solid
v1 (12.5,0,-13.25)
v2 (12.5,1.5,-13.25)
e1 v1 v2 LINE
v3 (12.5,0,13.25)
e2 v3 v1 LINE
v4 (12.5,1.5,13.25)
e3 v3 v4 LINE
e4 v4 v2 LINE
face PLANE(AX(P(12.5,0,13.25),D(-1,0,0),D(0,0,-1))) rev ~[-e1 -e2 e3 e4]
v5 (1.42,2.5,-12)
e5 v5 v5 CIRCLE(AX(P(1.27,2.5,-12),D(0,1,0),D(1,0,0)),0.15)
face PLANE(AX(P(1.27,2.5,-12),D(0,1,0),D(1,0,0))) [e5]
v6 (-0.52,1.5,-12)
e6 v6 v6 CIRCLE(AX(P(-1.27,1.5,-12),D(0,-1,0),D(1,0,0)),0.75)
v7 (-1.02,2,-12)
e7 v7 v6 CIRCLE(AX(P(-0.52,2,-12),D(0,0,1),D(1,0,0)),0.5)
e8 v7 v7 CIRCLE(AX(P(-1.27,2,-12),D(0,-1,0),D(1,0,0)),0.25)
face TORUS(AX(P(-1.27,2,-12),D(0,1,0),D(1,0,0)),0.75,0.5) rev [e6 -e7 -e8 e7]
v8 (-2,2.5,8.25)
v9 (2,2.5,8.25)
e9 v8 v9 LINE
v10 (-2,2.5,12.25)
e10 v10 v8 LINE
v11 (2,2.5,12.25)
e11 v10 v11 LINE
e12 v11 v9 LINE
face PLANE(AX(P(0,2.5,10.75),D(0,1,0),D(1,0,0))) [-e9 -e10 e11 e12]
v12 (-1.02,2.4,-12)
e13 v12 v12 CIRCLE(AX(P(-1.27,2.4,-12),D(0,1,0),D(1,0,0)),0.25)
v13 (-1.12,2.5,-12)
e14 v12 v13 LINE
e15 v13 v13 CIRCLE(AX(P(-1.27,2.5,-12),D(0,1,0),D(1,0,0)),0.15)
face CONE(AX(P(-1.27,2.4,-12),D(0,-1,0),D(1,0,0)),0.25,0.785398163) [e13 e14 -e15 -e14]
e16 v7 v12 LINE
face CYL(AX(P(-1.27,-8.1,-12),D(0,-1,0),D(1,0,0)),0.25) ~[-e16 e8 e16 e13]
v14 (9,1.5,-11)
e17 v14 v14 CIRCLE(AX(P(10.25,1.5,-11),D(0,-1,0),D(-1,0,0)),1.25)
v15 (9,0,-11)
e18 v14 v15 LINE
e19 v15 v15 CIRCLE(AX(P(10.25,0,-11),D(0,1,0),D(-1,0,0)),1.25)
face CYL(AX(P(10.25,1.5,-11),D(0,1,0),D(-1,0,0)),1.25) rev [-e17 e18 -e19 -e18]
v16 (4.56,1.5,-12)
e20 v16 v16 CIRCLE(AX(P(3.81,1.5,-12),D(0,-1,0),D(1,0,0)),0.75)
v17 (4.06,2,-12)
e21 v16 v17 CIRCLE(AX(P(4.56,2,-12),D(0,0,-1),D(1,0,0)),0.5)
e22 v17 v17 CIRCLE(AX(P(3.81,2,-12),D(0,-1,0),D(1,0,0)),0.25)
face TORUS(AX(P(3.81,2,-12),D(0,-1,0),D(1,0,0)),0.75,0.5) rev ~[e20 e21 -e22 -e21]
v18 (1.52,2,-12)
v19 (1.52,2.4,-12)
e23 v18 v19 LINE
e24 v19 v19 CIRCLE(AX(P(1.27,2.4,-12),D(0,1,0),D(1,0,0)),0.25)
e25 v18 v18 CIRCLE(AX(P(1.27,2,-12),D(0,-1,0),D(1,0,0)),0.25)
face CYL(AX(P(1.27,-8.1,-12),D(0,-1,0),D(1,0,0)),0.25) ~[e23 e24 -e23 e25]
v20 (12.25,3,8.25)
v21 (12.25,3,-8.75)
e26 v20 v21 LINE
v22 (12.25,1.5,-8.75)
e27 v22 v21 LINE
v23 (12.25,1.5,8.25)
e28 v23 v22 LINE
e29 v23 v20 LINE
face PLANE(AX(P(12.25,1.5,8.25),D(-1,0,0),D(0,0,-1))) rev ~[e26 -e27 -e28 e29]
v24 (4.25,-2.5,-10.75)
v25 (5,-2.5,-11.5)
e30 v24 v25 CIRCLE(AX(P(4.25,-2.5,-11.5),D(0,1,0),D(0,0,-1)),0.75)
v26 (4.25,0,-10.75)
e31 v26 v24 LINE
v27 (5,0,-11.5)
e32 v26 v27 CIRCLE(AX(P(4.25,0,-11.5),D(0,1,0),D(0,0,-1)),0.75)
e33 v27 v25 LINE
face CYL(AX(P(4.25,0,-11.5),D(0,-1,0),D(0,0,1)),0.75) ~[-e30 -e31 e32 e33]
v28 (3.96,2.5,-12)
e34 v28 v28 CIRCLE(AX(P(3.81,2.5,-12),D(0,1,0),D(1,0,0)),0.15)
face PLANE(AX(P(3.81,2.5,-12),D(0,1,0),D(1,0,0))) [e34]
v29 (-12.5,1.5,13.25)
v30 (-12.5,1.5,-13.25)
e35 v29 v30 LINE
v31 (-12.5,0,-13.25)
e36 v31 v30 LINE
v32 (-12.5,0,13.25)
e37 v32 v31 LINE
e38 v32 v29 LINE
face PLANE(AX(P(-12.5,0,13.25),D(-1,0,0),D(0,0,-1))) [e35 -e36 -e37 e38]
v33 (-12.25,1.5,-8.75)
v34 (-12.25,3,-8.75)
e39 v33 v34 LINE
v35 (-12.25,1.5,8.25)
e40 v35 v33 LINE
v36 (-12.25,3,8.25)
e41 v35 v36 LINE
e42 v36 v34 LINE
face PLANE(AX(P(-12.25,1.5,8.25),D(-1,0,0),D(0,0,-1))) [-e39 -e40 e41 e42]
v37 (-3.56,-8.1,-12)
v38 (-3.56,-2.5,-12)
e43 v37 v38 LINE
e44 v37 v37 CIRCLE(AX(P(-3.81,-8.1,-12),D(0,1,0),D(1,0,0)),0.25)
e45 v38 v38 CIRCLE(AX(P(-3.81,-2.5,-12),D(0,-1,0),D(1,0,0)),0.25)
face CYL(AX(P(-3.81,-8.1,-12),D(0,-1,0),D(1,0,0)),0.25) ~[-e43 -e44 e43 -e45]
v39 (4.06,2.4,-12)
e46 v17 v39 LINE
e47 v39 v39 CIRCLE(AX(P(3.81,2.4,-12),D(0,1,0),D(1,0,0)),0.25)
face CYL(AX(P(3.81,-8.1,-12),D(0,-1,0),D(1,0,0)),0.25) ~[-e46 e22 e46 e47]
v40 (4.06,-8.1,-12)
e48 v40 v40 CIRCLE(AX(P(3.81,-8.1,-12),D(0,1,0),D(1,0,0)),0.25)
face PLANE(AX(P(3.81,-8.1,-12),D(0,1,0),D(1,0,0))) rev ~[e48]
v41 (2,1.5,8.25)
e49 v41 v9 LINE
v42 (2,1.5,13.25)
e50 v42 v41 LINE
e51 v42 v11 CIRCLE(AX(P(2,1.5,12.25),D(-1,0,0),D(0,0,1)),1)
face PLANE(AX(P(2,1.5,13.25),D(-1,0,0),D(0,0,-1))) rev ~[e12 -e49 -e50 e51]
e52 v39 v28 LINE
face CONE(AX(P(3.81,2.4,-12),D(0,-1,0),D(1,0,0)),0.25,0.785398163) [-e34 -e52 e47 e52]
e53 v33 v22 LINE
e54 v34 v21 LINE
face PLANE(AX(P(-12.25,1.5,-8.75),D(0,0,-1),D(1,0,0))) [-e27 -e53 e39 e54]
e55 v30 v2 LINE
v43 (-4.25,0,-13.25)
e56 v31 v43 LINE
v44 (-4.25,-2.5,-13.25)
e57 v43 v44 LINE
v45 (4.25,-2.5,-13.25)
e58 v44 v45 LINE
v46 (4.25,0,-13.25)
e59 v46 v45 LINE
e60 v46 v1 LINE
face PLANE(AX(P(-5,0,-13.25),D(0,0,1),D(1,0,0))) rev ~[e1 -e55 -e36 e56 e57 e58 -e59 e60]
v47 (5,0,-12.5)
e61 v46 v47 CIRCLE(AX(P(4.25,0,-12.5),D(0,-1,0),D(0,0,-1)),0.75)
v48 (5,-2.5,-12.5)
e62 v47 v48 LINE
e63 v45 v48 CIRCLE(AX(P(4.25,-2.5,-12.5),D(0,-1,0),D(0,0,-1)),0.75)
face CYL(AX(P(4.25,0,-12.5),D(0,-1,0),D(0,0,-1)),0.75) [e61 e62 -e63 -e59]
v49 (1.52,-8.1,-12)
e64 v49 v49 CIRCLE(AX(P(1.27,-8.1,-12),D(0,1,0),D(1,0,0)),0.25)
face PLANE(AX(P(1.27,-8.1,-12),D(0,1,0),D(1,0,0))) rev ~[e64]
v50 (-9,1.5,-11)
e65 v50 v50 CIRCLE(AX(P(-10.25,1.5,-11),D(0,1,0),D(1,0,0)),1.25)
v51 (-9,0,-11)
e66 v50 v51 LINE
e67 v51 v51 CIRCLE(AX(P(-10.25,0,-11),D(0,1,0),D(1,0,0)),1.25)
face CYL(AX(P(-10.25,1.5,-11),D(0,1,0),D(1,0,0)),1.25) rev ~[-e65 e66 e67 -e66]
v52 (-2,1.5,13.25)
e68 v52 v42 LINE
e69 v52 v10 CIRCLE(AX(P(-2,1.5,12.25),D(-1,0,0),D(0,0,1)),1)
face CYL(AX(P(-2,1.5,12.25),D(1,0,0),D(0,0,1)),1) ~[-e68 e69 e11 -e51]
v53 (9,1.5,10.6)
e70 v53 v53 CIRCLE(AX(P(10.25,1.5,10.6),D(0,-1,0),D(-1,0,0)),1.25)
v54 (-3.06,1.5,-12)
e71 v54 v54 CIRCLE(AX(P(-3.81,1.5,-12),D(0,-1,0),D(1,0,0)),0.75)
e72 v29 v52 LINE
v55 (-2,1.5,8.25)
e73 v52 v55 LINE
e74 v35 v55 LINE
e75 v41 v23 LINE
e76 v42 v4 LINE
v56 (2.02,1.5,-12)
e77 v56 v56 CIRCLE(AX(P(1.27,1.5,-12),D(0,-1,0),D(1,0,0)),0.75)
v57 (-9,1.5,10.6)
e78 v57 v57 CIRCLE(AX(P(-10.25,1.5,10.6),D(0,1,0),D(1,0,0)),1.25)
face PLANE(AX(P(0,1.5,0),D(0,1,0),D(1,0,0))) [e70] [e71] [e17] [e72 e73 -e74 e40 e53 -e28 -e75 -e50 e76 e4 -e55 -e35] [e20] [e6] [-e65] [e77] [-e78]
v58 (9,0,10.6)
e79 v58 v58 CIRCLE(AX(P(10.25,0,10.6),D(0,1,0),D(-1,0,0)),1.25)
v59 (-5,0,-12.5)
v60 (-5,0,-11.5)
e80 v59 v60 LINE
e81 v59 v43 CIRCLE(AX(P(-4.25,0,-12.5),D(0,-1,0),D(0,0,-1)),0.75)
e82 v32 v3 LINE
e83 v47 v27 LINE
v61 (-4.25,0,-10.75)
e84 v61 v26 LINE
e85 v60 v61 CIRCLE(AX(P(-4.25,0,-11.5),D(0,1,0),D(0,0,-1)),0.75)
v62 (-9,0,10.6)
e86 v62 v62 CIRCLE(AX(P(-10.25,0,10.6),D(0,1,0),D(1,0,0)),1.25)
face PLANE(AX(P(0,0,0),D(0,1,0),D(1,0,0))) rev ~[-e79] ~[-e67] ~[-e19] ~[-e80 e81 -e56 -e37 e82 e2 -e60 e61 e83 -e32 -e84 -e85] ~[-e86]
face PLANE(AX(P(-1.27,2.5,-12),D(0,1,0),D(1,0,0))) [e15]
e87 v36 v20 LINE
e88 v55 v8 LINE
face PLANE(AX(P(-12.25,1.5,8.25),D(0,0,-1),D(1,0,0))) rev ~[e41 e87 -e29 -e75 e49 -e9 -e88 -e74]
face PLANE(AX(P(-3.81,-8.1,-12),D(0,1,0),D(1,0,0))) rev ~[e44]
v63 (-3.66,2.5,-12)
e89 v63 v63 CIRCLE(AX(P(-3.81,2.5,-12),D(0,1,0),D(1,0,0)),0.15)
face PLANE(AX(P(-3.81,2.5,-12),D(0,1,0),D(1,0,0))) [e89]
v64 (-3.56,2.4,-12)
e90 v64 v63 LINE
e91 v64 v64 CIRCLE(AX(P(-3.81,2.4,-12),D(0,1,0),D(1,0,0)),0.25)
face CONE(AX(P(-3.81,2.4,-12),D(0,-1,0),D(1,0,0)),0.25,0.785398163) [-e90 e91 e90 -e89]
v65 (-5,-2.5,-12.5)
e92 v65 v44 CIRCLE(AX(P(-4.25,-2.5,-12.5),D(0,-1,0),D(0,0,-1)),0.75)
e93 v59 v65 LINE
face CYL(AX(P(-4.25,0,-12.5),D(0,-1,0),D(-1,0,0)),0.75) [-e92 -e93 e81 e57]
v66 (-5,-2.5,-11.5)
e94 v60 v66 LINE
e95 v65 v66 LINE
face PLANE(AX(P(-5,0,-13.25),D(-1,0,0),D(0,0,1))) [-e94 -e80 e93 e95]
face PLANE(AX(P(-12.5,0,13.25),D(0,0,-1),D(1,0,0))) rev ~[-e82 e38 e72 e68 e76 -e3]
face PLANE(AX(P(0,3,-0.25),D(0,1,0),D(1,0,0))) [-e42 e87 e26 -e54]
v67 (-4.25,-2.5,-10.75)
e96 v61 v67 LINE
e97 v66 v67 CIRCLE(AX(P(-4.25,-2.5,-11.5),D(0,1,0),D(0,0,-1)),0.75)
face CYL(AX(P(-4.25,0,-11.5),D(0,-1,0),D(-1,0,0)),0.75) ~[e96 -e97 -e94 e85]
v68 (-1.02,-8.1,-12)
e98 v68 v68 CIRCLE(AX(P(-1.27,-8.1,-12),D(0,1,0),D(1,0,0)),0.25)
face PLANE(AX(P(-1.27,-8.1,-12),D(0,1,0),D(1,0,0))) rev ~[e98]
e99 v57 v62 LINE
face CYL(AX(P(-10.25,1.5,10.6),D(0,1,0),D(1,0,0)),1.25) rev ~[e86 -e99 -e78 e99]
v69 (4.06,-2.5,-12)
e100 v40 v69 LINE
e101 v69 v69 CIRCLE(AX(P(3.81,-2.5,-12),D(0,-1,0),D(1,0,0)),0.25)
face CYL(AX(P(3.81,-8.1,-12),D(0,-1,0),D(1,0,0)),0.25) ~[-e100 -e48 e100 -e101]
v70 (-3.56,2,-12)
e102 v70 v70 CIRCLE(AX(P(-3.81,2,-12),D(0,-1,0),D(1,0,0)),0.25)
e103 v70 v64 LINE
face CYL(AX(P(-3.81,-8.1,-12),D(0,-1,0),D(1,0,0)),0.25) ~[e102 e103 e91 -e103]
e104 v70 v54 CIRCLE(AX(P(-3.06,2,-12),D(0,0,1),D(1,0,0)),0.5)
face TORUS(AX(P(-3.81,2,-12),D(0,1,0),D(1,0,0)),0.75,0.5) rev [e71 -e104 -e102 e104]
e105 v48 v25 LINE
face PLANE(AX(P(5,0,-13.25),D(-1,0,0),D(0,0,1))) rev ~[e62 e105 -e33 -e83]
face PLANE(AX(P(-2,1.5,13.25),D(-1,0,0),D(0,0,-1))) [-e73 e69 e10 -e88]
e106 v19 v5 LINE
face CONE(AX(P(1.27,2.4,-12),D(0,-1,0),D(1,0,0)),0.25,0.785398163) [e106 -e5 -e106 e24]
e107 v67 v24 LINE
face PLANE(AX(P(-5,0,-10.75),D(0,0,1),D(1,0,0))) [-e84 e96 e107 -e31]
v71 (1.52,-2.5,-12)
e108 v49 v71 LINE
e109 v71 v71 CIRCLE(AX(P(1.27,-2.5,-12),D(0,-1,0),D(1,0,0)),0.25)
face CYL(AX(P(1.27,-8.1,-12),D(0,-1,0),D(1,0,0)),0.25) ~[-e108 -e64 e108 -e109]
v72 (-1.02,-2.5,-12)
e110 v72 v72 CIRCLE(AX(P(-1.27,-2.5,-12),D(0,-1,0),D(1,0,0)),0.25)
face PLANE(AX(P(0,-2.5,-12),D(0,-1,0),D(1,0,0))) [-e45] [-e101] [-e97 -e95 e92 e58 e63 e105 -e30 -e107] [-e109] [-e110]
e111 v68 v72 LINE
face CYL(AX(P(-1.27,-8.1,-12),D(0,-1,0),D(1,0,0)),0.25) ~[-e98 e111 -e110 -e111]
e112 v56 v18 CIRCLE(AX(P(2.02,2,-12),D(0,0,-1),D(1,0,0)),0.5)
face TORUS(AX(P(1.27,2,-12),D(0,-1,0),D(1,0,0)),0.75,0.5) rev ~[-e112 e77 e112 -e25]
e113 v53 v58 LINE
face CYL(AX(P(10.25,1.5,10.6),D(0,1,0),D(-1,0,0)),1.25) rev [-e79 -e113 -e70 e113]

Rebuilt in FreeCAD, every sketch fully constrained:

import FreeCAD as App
import Part
import Sketcher
from FreeCAD import Vector
Q = App.Units.Quantity


def edges_at(feature, points):
    """Names of the edges that pass closest to the given points."""
    edges = feature.Shape.Edges
    near = lambda p: min(range(len(edges)), key=lambda i: edges[i].distToShape(Part.Vertex(*p))[0])
    return sorted({f"Edge{near(p) + 1}" for p in points})


def add_polygon(sketch, points):
    """Adds a closed chain of lines whose ends are joined by coincident constraints."""
    first, n = sketch.GeometryCount, len(points)
    for a, b in zip(points, points[1:] + points[:1]):
        sketch.addGeometry(Part.LineSegment(App.Vector(*a, 0), App.Vector(*b, 0)), False)
    for i in range(n):
        sketch.addConstraint(Sketcher.Constraint("Coincident", first + i, 2, first + (i + 1) % n, 1))

doc = App.newDocument("Part")
body = doc.addObject("PartDesign::Body", "Body")

# Sketch on XZ plane
sketch1 = body.newObject("Sketcher::SketchObject", "Sketch")
sketch1.AttachmentSupport = (doc.getObject("XZ_Plane"), [""])
sketch1.MapMode = "FlatFace"
add_polygon(sketch1, [(-12, -13), (-12, 13), (12, 13), (12, -13)])  # lines 0-3
sketch1.addConstraint(Sketcher.Constraint("Vertical", 0))
sketch1.addConstraint(Sketcher.Constraint("Horizontal", 1))
sketch1.addConstraint(Sketcher.Constraint("Vertical", 2))
sketch1.addConstraint(Sketcher.Constraint("Horizontal", 3))
sketch1.addConstraint(Sketcher.Constraint("Symmetric", 0, 2, 2, 2, -1, 1))
sketch1.addConstraint(Sketcher.Constraint("DistanceX", 1, 1, 1, 2, Q("25 mm")))
sketch1.addConstraint(Sketcher.Constraint("DistanceY", 0, 1, 0, 2, Q("26.5 mm")))
pad1 = body.newObject("PartDesign::Pad", "Pad")
pad1.Profile = sketch1
pad1.Length = 1.5
pad1.Reversed = True

# Sketch on XZ plane
sketch2 = body.newObject("Sketcher::SketchObject", "Sketch001")
sketch2.AttachmentSupport = (doc.getObject("XZ_Plane"), [""])
sketch2.MapMode = "FlatFace"
sketch2.AttachmentOffset = App.Placement(Vector(0, 0, -1.5), App.Rotation())
add_polygon(sketch2, [(-12, -9), (-12, 8), (12, 8), (12, -9)])  # lines 0-3
sketch2.addConstraint(Sketcher.Constraint("Vertical", 0))
sketch2.addConstraint(Sketcher.Constraint("Horizontal", 1))
sketch2.addConstraint(Sketcher.Constraint("Vertical", 2))
sketch2.addConstraint(Sketcher.Constraint("Horizontal", 3))
sketch2.addConstraint(Sketcher.Constraint("DistanceY", 0, 1, 0, 2, Q("17 mm")))
sketch2.addConstraint(Sketcher.Constraint("DistanceX", 1, 1, 1, 2, Q("24.5 mm")))
sketch2.addConstraint(Sketcher.Constraint("DistanceX", 0, 2, -1, 1, Q("12.25 mm")))
sketch2.addConstraint(Sketcher.Constraint("DistanceY", -1, 1, 0, 2, Q("8.25 mm")))
pad2 = body.newObject("PartDesign::Pad", "Pad001")
pad2.Profile = sketch2
pad2.Length = 1.5
pad2.Reversed = True

# Sketch on XZ plane
sketch3 = body.newObject("Sketcher::SketchObject", "Sketch002")
sketch3.AttachmentSupport = (doc.getObject("XZ_Plane"), [""])
sketch3.MapMode = "FlatFace"
sketch3.AttachmentOffset = App.Placement(Vector(0, 0, -1.5), App.Rotation())
sketch3.addGeometry(Part.Circle(Vector(-10.2, 10.6, 0), Vector(0, 0, 1), 1.2), False)
sketch3.addConstraint(Sketcher.Constraint("Diameter", 0, Q("2.5 mm")))
sketch3.addConstraint(Sketcher.Constraint("DistanceY", -1, 1, 0, 3, Q("10.6 mm")))
sketch3.addConstraint(Sketcher.Constraint("DistanceX", 0, 3, -1, 1, Q("10.25 mm")))
pocket1 = body.newObject("PartDesign::Pocket", "Pocket")
pocket1.Profile = sketch3
pocket1.Length = 7.5
pocket1.Reversed = True
doc.recompute()

mirrored = body.newObject("PartDesign::Mirrored", "Mirrored")
mirrored.Originals = [pocket1]
mirrored.MirrorPlane = (doc.getObject("YZ_Plane"), [""])
body.Tip = mirrored

# Sketch on XZ plane
sketch4 = body.newObject("Sketcher::SketchObject", "Sketch003")
sketch4.AttachmentSupport = (doc.getObject("XZ_Plane"), [""])
sketch4.MapMode = "FlatFace"
sketch4.AttachmentOffset = App.Placement(Vector(0, 0, -1.5), App.Rotation())
sketch4.addGeometry(Part.Circle(Vector(-10.2, -11, 0), Vector(0, 0, 1), 1.2), False)
sketch4.addConstraint(Sketcher.Constraint("Diameter", 0, Q("2.5 mm")))
sketch4.addConstraint(Sketcher.Constraint("DistanceY", 0, 3, -1, 1, Q("11 mm")))
sketch4.addConstraint(Sketcher.Constraint("DistanceX", 0, 3, -1, 1, Q("10.25 mm")))
pocket2 = body.newObject("PartDesign::Pocket", "Pocket001")
pocket2.Profile = sketch4
pocket2.Length = 7.5
pocket2.Reversed = True
doc.recompute()

mirrored2 = body.newObject("PartDesign::Mirrored", "Mirrored001")
mirrored2.Originals = [pocket2]
mirrored2.MirrorPlane = (doc.getObject("YZ_Plane"), [""])
body.Tip = mirrored2

# Sketch on XZ plane
sketch5 = body.newObject("Sketcher::SketchObject", "Sketch004")
sketch5.AttachmentSupport = (doc.getObject("XZ_Plane"), [""])
sketch5.MapMode = "FlatFace"
sketch5.AttachmentOffset = App.Placement(Vector(0, 0, -1.5), App.Rotation())
add_polygon(sketch5, [(-2, 8.2), (-2, 13.2), (2, 13.2), (2, 8.2)])  # lines 0-3
sketch5.addConstraint(Sketcher.Constraint("Vertical", 0))
sketch5.addConstraint(Sketcher.Constraint("Horizontal", 1))
sketch5.addConstraint(Sketcher.Constraint("Vertical", 2))
sketch5.addConstraint(Sketcher.Constraint("Horizontal", 3))
sketch5.addConstraint(Sketcher.Constraint("DistanceX", 1, 1, 1, 2, Q("4 mm")))
sketch5.addConstraint(Sketcher.Constraint("DistanceY", 0, 1, 0, 2, Q("5 mm")))
sketch5.addConstraint(Sketcher.Constraint("DistanceX", 0, 2, -1, 1, Q("2 mm")))
sketch5.addConstraint(Sketcher.Constraint("DistanceY", -1, 1, 0, 2, Q("13.25 mm")))
pad3 = body.newObject("PartDesign::Pad", "Pad002")
pad3.Profile = sketch5
pad3.Length = 1
pad3.Reversed = True
doc.recompute()

fillet = body.newObject("PartDesign::Fillet", "Fillet")
fillet.Base = (pad3, edges_at(pad3, [(0, 2.5, 13.25)]))
fillet.Radius = 1

# Sketch on XZ plane
sketch6 = body.newObject("Sketcher::SketchObject", "Sketch005")
sketch6.AttachmentSupport = (doc.getObject("XZ_Plane"), [""])
sketch6.MapMode = "FlatFace"
sketch6.AttachmentOffset = App.Placement(Vector(0, 0, 8.1), App.Rotation())
sketch6.addGeometry(Part.Circle(Vector(-3.81, -12, 0), Vector(0, 0, 1), 0.25), False)
sketch6.addConstraint(Sketcher.Constraint("Diameter", 0, Q("0.5 mm")))
sketch6.addConstraint(Sketcher.Constraint("DistanceY", 0, 3, -1, 1, Q("12 mm")))
sketch6.addConstraint(Sketcher.Constraint("DistanceX", 0, 3, -1, 1, Q("3.81 mm")))
pad4 = body.newObject("PartDesign::Pad", "Pad003")
pad4.Profile = sketch6
pad4.Length = 10.6
pad4.Reversed = True
doc.recompute()

chamfer = body.newObject("PartDesign::Chamfer", "Chamfer")
chamfer.Base = (pad4, edges_at(pad4, [(-4.06, 2.5, -12)]))
chamfer.Size = 0.1
doc.recompute()

fillet2 = body.newObject("PartDesign::Fillet", "Fillet001")
fillet2.Base = (chamfer, edges_at(chamfer, [(-4.06, 1.5, -12)]))
fillet2.Radius = 0.5
doc.recompute()

linearpattern = body.newObject("PartDesign::LinearPattern", "LinearPattern")
linearpattern.Originals = [pad4]
linearpattern.Direction = (doc.getObject("X_Axis"), [""])
linearpattern.Mode = "offset"
linearpattern.Offset = 2.54
linearpattern.Occurrences = 4
body.Tip = linearpattern
doc.recompute()

chamfer2 = body.newObject("PartDesign::Chamfer", "Chamfer001")
chamfer2.Base = (linearpattern, edges_at(linearpattern, [(-1.52, 2.5, -12), (1.02, 2.5, -12), (3.56, 2.5, -12)]))
chamfer2.Size = 0.1
doc.recompute()

fillet3 = body.newObject("PartDesign::Fillet", "Fillet002")
fillet3.Base = (chamfer2, edges_at(chamfer2, [(-1.52, 1.5, -12), (1.02, 1.5, -12), (3.56, 1.5, -12)]))
fillet3.Radius = 0.5

# Sketch on XZ plane
sketch7 = body.newObject("Sketcher::SketchObject", "Sketch006")
sketch7.AttachmentSupport = (doc.getObject("XZ_Plane"), [""])
sketch7.MapMode = "FlatFace"
add_polygon(sketch7, [(-5, -10.8), (-5, -13.2), (5, -13.2), (5, -10.8)])  # lines 0-3
sketch7.addConstraint(Sketcher.Constraint("Vertical", 0))
sketch7.addConstraint(Sketcher.Constraint("Horizontal", 1))
sketch7.addConstraint(Sketcher.Constraint("Vertical", 2))
sketch7.addConstraint(Sketcher.Constraint("Horizontal", 3))
sketch7.addConstraint(Sketcher.Constraint("DistanceX", 1, 1, 1, 2, Q("10 mm")))
sketch7.addConstraint(Sketcher.Constraint("DistanceY", 0, 2, 0, 1, Q("2.5 mm")))
sketch7.addConstraint(Sketcher.Constraint("DistanceX", 0, 2, -1, 1, Q("5 mm")))
sketch7.addConstraint(Sketcher.Constraint("DistanceY", 0, 2, -1, 1, Q("13.25 mm")))
pad5 = body.newObject("PartDesign::Pad", "Pad004")
pad5.Profile = sketch7
pad5.Length = 2.5
doc.recompute()

fillet4 = body.newObject("PartDesign::Fillet", "Fillet003")
fillet4.Base = (pad5, edges_at(pad5, [
    (-5, -1.25, -10.75),
    (-5, -1.25, -13.25),
    (5, -1.25, -13.25),
    (5, -1.25, -10.75),
]))
fillet4.Radius = 0.75

doc.recompute()
